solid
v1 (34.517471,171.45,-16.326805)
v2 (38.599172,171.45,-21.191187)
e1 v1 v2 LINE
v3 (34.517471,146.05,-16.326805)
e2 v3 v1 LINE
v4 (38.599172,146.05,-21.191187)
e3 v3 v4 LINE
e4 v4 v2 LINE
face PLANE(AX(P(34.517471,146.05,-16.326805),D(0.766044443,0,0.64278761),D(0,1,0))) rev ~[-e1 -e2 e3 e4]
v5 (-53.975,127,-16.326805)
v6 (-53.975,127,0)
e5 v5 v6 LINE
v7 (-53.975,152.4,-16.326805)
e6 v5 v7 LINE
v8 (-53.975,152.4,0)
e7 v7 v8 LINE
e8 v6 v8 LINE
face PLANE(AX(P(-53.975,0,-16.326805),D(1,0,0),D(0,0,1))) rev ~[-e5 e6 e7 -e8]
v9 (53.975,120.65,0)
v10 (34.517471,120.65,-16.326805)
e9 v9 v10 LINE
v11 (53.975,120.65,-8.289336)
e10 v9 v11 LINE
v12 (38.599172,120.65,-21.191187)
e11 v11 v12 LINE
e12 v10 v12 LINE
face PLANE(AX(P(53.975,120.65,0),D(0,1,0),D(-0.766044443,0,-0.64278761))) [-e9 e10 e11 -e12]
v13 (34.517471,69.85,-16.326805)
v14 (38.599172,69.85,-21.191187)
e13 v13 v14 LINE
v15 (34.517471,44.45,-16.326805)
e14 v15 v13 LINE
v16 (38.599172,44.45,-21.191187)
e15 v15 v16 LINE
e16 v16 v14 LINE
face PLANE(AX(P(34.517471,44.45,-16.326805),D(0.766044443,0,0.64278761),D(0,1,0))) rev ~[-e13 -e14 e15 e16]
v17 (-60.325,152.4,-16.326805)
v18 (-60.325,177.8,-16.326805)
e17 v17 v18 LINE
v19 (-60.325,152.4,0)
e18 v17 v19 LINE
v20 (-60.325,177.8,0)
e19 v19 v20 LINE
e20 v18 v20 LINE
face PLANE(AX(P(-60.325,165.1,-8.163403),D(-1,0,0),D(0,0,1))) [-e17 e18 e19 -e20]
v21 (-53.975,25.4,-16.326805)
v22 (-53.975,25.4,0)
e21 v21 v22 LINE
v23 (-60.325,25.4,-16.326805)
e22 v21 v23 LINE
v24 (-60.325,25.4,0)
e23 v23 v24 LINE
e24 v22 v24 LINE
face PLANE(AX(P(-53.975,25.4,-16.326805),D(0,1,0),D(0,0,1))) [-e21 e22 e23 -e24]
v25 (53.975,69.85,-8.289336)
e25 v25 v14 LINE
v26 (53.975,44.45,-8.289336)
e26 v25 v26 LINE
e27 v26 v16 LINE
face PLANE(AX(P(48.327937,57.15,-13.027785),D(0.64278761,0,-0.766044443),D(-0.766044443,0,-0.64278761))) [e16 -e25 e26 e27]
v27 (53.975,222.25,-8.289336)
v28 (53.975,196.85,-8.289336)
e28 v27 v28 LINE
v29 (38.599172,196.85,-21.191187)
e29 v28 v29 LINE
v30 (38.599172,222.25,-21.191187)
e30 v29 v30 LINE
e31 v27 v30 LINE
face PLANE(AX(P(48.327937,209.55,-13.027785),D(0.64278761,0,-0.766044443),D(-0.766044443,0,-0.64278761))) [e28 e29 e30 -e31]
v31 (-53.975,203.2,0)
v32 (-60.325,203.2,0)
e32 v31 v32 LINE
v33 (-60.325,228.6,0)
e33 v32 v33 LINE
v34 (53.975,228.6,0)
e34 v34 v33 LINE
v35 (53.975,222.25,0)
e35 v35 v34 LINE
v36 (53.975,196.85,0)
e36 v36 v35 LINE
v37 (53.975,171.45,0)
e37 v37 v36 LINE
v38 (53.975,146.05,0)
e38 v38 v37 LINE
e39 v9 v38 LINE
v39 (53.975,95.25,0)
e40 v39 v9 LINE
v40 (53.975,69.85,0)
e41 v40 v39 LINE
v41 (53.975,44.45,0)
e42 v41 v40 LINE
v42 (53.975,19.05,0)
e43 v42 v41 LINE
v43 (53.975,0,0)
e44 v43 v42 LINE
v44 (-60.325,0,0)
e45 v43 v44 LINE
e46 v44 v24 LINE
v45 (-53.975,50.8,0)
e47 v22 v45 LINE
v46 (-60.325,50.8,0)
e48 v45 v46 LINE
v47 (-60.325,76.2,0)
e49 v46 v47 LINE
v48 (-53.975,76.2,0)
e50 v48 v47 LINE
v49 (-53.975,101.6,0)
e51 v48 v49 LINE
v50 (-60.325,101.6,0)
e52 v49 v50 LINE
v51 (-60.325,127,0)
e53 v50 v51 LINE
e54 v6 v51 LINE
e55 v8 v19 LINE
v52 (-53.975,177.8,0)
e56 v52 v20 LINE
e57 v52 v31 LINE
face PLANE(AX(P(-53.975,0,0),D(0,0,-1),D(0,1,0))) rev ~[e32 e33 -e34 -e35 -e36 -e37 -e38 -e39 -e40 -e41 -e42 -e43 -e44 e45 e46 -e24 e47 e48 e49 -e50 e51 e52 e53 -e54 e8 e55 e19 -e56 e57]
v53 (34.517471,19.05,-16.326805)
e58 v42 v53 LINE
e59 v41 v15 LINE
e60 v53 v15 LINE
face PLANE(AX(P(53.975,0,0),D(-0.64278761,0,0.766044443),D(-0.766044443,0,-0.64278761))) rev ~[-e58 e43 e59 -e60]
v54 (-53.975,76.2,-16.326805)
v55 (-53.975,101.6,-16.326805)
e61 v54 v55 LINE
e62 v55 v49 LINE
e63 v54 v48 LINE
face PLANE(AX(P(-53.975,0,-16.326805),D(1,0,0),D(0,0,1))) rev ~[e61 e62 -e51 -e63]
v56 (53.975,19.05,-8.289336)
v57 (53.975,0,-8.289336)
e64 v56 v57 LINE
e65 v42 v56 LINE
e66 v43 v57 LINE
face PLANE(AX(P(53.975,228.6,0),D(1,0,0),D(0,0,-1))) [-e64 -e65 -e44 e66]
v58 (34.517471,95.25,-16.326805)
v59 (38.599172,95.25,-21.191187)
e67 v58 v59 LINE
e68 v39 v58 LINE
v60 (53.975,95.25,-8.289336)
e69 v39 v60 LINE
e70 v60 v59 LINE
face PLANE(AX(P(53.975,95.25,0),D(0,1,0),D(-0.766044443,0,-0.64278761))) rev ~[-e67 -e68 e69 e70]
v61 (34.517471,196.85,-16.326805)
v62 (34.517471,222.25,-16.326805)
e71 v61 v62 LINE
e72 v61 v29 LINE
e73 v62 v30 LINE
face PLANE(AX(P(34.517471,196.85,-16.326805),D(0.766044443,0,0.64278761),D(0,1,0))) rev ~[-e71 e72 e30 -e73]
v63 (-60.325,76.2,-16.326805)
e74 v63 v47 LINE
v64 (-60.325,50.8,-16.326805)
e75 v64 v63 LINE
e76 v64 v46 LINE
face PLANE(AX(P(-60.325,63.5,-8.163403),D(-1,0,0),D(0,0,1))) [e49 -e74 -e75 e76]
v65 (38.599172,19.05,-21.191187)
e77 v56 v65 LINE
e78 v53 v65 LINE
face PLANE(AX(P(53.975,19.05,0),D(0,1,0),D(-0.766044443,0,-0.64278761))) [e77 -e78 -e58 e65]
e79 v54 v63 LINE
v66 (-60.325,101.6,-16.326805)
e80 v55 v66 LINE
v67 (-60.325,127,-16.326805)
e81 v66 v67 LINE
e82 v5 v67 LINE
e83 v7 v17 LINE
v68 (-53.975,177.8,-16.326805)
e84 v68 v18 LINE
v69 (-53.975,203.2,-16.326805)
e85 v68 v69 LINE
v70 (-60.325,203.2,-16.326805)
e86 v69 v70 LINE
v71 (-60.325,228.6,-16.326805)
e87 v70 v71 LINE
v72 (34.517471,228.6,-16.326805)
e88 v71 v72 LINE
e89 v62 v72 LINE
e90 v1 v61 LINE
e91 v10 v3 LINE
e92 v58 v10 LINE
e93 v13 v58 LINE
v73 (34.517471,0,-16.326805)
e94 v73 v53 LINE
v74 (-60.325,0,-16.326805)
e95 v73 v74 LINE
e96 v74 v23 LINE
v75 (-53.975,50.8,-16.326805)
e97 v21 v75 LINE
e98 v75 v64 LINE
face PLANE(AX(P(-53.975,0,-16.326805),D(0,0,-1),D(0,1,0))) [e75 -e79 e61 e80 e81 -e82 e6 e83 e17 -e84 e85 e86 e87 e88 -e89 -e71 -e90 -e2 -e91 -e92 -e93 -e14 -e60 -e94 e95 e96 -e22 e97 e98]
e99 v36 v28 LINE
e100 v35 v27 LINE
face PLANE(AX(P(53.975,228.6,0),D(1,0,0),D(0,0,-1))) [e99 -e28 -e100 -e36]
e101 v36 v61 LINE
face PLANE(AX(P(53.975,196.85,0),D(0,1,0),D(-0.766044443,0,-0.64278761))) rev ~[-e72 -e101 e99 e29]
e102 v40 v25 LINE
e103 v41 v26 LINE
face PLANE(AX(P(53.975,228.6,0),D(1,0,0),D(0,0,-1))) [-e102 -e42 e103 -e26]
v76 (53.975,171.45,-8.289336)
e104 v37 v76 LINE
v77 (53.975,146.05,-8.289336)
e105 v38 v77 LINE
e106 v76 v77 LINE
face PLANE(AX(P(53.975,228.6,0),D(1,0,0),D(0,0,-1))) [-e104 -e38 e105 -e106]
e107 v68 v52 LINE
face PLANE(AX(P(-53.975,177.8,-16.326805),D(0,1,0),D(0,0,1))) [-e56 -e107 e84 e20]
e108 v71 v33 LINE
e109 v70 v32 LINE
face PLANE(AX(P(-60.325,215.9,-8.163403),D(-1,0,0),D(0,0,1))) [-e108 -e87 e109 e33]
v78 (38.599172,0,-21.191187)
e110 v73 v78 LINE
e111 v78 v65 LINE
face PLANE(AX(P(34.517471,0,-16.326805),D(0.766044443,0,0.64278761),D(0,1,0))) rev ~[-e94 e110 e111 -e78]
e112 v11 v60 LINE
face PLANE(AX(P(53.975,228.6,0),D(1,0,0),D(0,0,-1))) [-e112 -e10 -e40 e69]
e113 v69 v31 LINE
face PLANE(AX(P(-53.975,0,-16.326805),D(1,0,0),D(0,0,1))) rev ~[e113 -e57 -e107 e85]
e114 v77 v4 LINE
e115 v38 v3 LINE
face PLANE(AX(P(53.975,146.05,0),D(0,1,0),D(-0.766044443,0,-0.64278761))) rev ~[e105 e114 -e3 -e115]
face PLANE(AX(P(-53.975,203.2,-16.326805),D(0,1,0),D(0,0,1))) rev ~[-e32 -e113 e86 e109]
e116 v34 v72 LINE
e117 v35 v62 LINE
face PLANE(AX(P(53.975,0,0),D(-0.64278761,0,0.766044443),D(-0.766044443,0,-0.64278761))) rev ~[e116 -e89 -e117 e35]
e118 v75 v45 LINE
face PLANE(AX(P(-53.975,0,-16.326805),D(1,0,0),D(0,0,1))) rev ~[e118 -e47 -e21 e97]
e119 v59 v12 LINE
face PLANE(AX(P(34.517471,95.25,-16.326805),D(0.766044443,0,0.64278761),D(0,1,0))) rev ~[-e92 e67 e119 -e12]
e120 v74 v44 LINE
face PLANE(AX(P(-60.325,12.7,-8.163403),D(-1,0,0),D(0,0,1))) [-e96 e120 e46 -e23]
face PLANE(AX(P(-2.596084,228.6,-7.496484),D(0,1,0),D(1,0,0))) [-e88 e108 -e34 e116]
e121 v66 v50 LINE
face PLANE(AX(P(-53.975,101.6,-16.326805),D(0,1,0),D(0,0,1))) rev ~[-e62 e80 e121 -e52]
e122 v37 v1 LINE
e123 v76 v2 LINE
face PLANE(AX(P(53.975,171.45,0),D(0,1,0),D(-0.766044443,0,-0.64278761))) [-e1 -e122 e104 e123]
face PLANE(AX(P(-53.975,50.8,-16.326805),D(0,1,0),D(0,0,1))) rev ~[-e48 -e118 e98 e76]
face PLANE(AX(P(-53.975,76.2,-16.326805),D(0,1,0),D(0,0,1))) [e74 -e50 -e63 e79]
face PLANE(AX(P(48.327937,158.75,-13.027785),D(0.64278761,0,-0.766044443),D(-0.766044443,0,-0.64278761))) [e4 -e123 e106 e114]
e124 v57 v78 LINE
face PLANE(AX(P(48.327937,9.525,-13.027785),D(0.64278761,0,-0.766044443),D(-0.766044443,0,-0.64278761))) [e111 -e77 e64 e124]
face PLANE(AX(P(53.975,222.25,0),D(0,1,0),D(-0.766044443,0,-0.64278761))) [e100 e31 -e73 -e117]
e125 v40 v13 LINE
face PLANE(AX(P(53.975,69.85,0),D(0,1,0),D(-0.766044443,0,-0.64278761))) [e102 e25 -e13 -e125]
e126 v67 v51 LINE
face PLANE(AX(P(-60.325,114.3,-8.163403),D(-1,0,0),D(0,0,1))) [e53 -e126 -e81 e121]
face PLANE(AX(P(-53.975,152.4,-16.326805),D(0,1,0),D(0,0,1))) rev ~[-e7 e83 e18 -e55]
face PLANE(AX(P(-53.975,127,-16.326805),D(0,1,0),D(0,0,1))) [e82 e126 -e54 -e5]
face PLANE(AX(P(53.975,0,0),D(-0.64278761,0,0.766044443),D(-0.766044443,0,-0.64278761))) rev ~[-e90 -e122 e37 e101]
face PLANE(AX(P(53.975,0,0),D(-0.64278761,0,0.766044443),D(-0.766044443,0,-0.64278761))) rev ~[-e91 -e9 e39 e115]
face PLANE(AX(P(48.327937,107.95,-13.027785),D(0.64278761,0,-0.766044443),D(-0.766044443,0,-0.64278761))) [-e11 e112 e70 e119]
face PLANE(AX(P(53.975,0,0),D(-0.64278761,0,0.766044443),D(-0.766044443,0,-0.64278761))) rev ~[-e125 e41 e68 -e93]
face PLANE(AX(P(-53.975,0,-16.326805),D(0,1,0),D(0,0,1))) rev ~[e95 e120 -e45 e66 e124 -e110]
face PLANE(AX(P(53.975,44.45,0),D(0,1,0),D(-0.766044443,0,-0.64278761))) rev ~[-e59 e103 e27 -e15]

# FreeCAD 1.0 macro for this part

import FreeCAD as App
import Part
import Sketcher
from FreeCAD import Vector
Q = App.Units.Quantity

doc = App.newDocument("Part")
body = doc.addObject("PartDesign::Body", "Body")

sketch1 = body.newObject("Sketcher::SketchObject", "Sketch")
sketch1.AttachmentSupport = (doc.getObject("XZ_Plane"), [""])
sketch1.MapMode = "FlatFace"
sketch1.addGeometry([
    Part.LineSegment(Vector(-54, 0, 0), Vector(54, 0, 0)),
    Part.LineSegment(Vector(54, 0, 0), Vector(35, -16, 0)),
    Part.LineSegment(Vector(35, -16, 0), Vector(-54, -16, 0)),
    Part.LineSegment(Vector(-54, -16, 0), Vector(-54, 0, 0)),
], False)
sketch1.addConstraint([
    Sketcher.Constraint("Coincident", 0, 2, 1, 1),
    Sketcher.Constraint("Coincident", 1, 2, 2, 1),
    Sketcher.Constraint("Coincident", 2, 2, 3, 1),
    Sketcher.Constraint("Coincident", 3, 2, 0, 1),
    Sketcher.Constraint("Horizontal", 0),
    Sketcher.Constraint("Horizontal", 2),
    Sketcher.Constraint("Vertical", 3),
    Sketcher.Constraint("Symmetric", 0, 2, 3, 2, -1, 1),
    Sketcher.Constraint("Distance", 1, Q("1 in")),
    Sketcher.Constraint("Angle", 1, Q("-140 deg")),
    Sketcher.Constraint("DistanceX", 0, 1, 0, 2, Q("4.25 in")),
])
pad1 = body.newObject("PartDesign::Pad", "Pad")
pad1.Profile = sketch1
pad1.Length = Q("9 in")
pad1.Reversed = True

sketch2 = body.newObject("Sketcher::SketchObject", "Sketch001")
sketch2.Placement = App.Placement(Vector(22.30117, 0, -26.577499), App.Rotation(Vector(-0.766044443, 0, -0.64278761), Vector(0, 1, 0), Vector(0.64278761, 0, -0.766044443), "ZXY"))
sketch2.addGeometry([
    Part.LineSegment(Vector(-41, 222, 0), Vector(-41, 197, 0)),
    Part.LineSegment(Vector(-41, 197, 0), Vector(-16, 197, 0)),
    Part.LineSegment(Vector(-16, 197, 0), Vector(-16, 222, 0)),
    Part.LineSegment(Vector(-16, 222, 0), Vector(-41, 222, 0)),
    Part.LineSegment(Vector(-41, 171, 0), Vector(-41, 146, 0)),
    Part.LineSegment(Vector(-41, 146, 0), Vector(-16, 146, 0)),
    Part.LineSegment(Vector(-16, 146, 0), Vector(-16, 171, 0)),
    Part.LineSegment(Vector(-16, 171, 0), Vector(-41, 171, 0)),
    Part.LineSegment(Vector(-41, 121, 0), Vector(-41, 95, 0)),
    Part.LineSegment(Vector(-41, 95, 0), Vector(-16, 95, 0)),
    Part.LineSegment(Vector(-16, 95, 0), Vector(-16, 121, 0)),
    Part.LineSegment(Vector(-16, 121, 0), Vector(-41, 121, 0)),
    Part.LineSegment(Vector(-41, 70, 0), Vector(-41, 44, 0)),
    Part.LineSegment(Vector(-41, 44, 0), Vector(-16, 44, 0)),
    Part.LineSegment(Vector(-16, 44, 0), Vector(-16, 70, 0)),
    Part.LineSegment(Vector(-16, 70, 0), Vector(-41, 70, 0)),
    Part.LineSegment(Vector(-41, 19, 0), Vector(-41, 0, 0)),
    Part.LineSegment(Vector(-41, 0, 0), Vector(-16, 0, 0)),
    Part.LineSegment(Vector(-16, 0, 0), Vector(-16, 19, 0)),
    Part.LineSegment(Vector(-16, 19, 0), Vector(-41, 19, 0)),
], False)
sketch2.addConstraint([
    Sketcher.Constraint("Coincident", 0, 2, 1, 1),
    Sketcher.Constraint("Coincident", 1, 2, 2, 1),
    Sketcher.Constraint("Coincident", 2, 2, 3, 1),
    Sketcher.Constraint("Coincident", 3, 2, 0, 1),
    Sketcher.Constraint("Coincident", 4, 2, 5, 1),
    Sketcher.Constraint("Coincident", 5, 2, 6, 1),
    Sketcher.Constraint("Coincident", 6, 2, 7, 1),
    Sketcher.Constraint("Coincident", 7, 2, 4, 1),
    Sketcher.Constraint("Coincident", 8, 2, 9, 1),
    Sketcher.Constraint("Coincident", 9, 2, 10, 1),
    Sketcher.Constraint("Coincident", 10, 2, 11, 1),
    Sketcher.Constraint("Coincident", 11, 2, 8, 1),
    Sketcher.Constraint("Coincident", 12, 2, 13, 1),
    Sketcher.Constraint("Coincident", 13, 2, 14, 1),
    Sketcher.Constraint("Coincident", 14, 2, 15, 1),
    Sketcher.Constraint("Coincident", 15, 2, 12, 1),
    Sketcher.Constraint("Coincident", 16, 2, 17, 1),
    Sketcher.Constraint("Coincident", 17, 2, 18, 1),
    Sketcher.Constraint("Coincident", 18, 2, 19, 1),
    Sketcher.Constraint("Coincident", 19, 2, 16, 1),
    Sketcher.Constraint("Vertical", 0),
    Sketcher.Constraint("Horizontal", 1),
    Sketcher.Constraint("Vertical", 2),
    Sketcher.Constraint("Horizontal", 3),
    Sketcher.Constraint("Vertical", 4),
    Sketcher.Constraint("Horizontal", 5),
    Sketcher.Constraint("Vertical", 6),
    Sketcher.Constraint("Horizontal", 7),
    Sketcher.Constraint("Vertical", 8),
    Sketcher.Constraint("Horizontal", 9),
    Sketcher.Constraint("Vertical", 10),
    Sketcher.Constraint("Horizontal", 11),
    Sketcher.Constraint("Vertical", 12),
    Sketcher.Constraint("Horizontal", 13),
    Sketcher.Constraint("Vertical", 14),
    Sketcher.Constraint("Horizontal", 15),
    Sketcher.Constraint("Vertical", 16),
    Sketcher.Constraint("Horizontal", 17),
    Sketcher.Constraint("Vertical", 18),
    Sketcher.Constraint("Horizontal", 19),
    Sketcher.Constraint("PointOnObject", 16, 2, -1),
    Sketcher.Constraint("Vertical", 3, 2, 4, 2),
    Sketcher.Constraint("Vertical", 2, 2, 5, 2),
    Sketcher.Constraint("Vertical", 7, 2, 8, 2),
    Sketcher.Constraint("Vertical", 6, 2, 9, 2),
    Sketcher.Constraint("Vertical", 11, 2, 12, 2),
    Sketcher.Constraint("Vertical", 10, 2, 13, 2),
    Sketcher.Constraint("Vertical", 15, 2, 16, 2),
    Sketcher.Constraint("Vertical", 14, 2, 17, 2),
    Sketcher.Constraint("Equal", 19, 0),
    Sketcher.Constraint("Equal", 2, 4),
    Sketcher.Constraint("Equal", 6, 8),
    Sketcher.Constraint("Equal", 10, 12),
    Sketcher.Constraint("DistanceX", 1, 1, 1, 2, Q("1 in")),
    Sketcher.Constraint("DistanceY", 4, 2, 0, 2, Q("2 in")),
    Sketcher.Constraint("DistanceY", 8, 2, 4, 2, Q("2 in")),
    Sketcher.Constraint("DistanceY", 12, 2, 8, 2, Q("2 in")),
    Sketcher.Constraint("DistanceY", 18, 2, 13, 2, Q("1 in")),
    Sketcher.Constraint("DistanceY", 16, 2, 16, 1, Q("0.75 in")),
    Sketcher.Constraint("DistanceX", 0, 2, -1, 1, 41.347249),
])
pad2 = body.newObject("PartDesign::Pad", "Pad001")
pad2.Profile = sketch2
pad2.Length = Q("0.25 in")

sketch3 = body.newObject("Sketcher::SketchObject", "Sketch002")
sketch3.AttachmentSupport = (doc.getObject("XZ_Plane"), [""])
sketch3.MapMode = "FlatFace"
sketch3.AttachmentOffset = App.Placement(Vector(0, 0, -9 * 25.4), App.Rotation())
sketch3.addGeometry([
    Part.LineSegment(Vector(54, -25, 0), Vector(54, 0, 0)),
    Part.LineSegment(Vector(54, 0, 0), Vector(79, 0, 0)),
    Part.LineSegment(Vector(79, 0, 0), Vector(79, -25, 0)),
    Part.LineSegment(Vector(79, -25, 0), Vector(54, -25, 0)),
], False)
sketch3.addConstraint([
    Sketcher.Constraint("Coincident", 0, 2, 1, 1),
    Sketcher.Constraint("Coincident", 1, 2, 2, 1),
    Sketcher.Constraint("Coincident", 2, 2, 3, 1),
    Sketcher.Constraint("Coincident", 3, 2, 0, 1),
    Sketcher.Constraint("Vertical", 0),
    Sketcher.Constraint("Horizontal", 1),
    Sketcher.Constraint("Vertical", 2),
    Sketcher.Constraint("Horizontal", 3),
    Sketcher.Constraint("PointOnObject", 0, 2, -1),
    Sketcher.Constraint("Equal", 3, 0),
    Sketcher.Constraint("DistanceX", 1, 1, 1, 2, Q("1 in")),
    Sketcher.Constraint("DistanceX", -1, 1, 0, 2, Q("2.125 in")),
])
pocket1 = body.newObject("PartDesign::Pocket", "Pocket")
pocket1.Profile = sketch3
pocket1.Length = Q("9 in")
pocket1.Reversed = True

sketch4 = body.newObject("Sketcher::SketchObject", "Sketch003")
sketch4.AttachmentSupport = (doc.getObject("YZ_Plane"), [""])
sketch4.MapMode = "FlatFace"
sketch4.AttachmentOffset = App.Placement(Vector(0, 0, -2.125 * 25.4), App.Rotation())
sketch4.addGeometry([
    Part.LineSegment(Vector(25, -16, 0), Vector(0, -16, 0)),
    Part.LineSegment(Vector(0, -16, 0), Vector(0, 0, 0)),
    Part.LineSegment(Vector(0, 0, 0), Vector(25, 0, 0)),
    Part.LineSegment(Vector(25, 0, 0), Vector(25, -16, 0)),
    Part.LineSegment(Vector(76, -16, 0), Vector(51, -16, 0)),
    Part.LineSegment(Vector(51, -16, 0), Vector(51, 0, 0)),
    Part.LineSegment(Vector(51, 0, 0), Vector(76, 0, 0)),
    Part.LineSegment(Vector(76, 0, 0), Vector(76, -16, 0)),
    Part.LineSegment(Vector(127, -16, 0), Vector(102, -16, 0)),
    Part.LineSegment(Vector(102, -16, 0), Vector(102, 0, 0)),
    Part.LineSegment(Vector(102, 0, 0), Vector(127, 0, 0)),
    Part.LineSegment(Vector(127, 0, 0), Vector(127, -16, 0)),
    Part.LineSegment(Vector(178, -16, 0), Vector(152, -16, 0)),
    Part.LineSegment(Vector(152, -16, 0), Vector(152, 0, 0)),
    Part.LineSegment(Vector(152, 0, 0), Vector(178, 0, 0)),
    Part.LineSegment(Vector(178, 0, 0), Vector(178, -16, 0)),
    Part.LineSegment(Vector(229, -16, 0), Vector(203, -16, 0)),
    Part.LineSegment(Vector(203, -16, 0), Vector(203, 0, 0)),
    Part.LineSegment(Vector(203, 0, 0), Vector(229, 0, 0)),
    Part.LineSegment(Vector(229, 0, 0), Vector(229, -16, 0)),
], False)
sketch4.addConstraint([
    Sketcher.Constraint("Coincident", 0, 2, 1, 1),
    Sketcher.Constraint("Coincident", 1, 2, 2, 1),
    Sketcher.Constraint("Coincident", 2, 2, 3, 1),
    Sketcher.Constraint("Coincident", 3, 2, 0, 1),
    Sketcher.Constraint("Coincident", 4, 2, 5, 1),
    Sketcher.Constraint("Coincident", 5, 2, 6, 1),
    Sketcher.Constraint("Coincident", 6, 2, 7, 1),
    Sketcher.Constraint("Coincident", 7, 2, 4, 1),
    Sketcher.Constraint("Coincident", 8, 2, 9, 1),
    Sketcher.Constraint("Coincident", 9, 2, 10, 1),
    Sketcher.Constraint("Coincident", 10, 2, 11, 1),
    Sketcher.Constraint("Coincident", 11, 2, 8, 1),
    Sketcher.Constraint("Coincident", 12, 2, 13, 1),
    Sketcher.Constraint("Coincident", 13, 2, 14, 1),
    Sketcher.Constraint("Coincident", 14, 2, 15, 1),
    Sketcher.Constraint("Coincident", 15, 2, 12, 1),
    Sketcher.Constraint("Coincident", 16, 2, 17, 1),
    Sketcher.Constraint("Coincident", 17, 2, 18, 1),
    Sketcher.Constraint("Coincident", 18, 2, 19, 1),
    Sketcher.Constraint("Coincident", 19, 2, 16, 1),
    Sketcher.Constraint("Horizontal", 0),
    Sketcher.Constraint("Vertical", 1),
    Sketcher.Constraint("Horizontal", 2),
    Sketcher.Constraint("Vertical", 3),
    Sketcher.Constraint("Horizontal", 4),
    Sketcher.Constraint("Vertical", 5),
    Sketcher.Constraint("Horizontal", 6),
    Sketcher.Constraint("Vertical", 7),
    Sketcher.Constraint("Horizontal", 8),
    Sketcher.Constraint("Vertical", 9),
    Sketcher.Constraint("Horizontal", 10),
    Sketcher.Constraint("Vertical", 11),
    Sketcher.Constraint("Horizontal", 12),
    Sketcher.Constraint("Vertical", 13),
    Sketcher.Constraint("Horizontal", 14),
    Sketcher.Constraint("Vertical", 15),
    Sketcher.Constraint("Horizontal", 16),
    Sketcher.Constraint("Vertical", 17),
    Sketcher.Constraint("Horizontal", 18),
    Sketcher.Constraint("Vertical", 19),
    Sketcher.Constraint("Coincident", 1, 2, -1, 1),
    Sketcher.Constraint("PointOnObject", 5, 2, -1),
    Sketcher.Constraint("PointOnObject", 9, 2, -1),
    Sketcher.Constraint("PointOnObject", 13, 2, -1),
    Sketcher.Constraint("PointOnObject", 17, 2, -1),
    Sketcher.Constraint("Horizontal", 3, 2, 4, 2),
    Sketcher.Constraint("Horizontal", 7, 2, 8, 2),
    Sketcher.Constraint("Horizontal", 11, 2, 12, 2),
    Sketcher.Constraint("Horizontal", 15, 2, 16, 2),
    Sketcher.Constraint("Equal", 2, 4),
    Sketcher.Constraint("Equal", 6, 8),
    Sketcher.Constraint("Equal", 10, 12),
    Sketcher.Constraint("Equal", 14, 16),
    Sketcher.Constraint("DistanceX", 0, 2, 0, 1, Q("1 in")),
    Sketcher.Constraint("DistanceX", -1, 1, 4, 2, Q("2 in")),
    Sketcher.Constraint("DistanceX", -1, 1, 8, 2, Q("4 in")),
    Sketcher.Constraint("DistanceX", -1, 1, 12, 2, Q("6 in")),
    Sketcher.Constraint("DistanceX", -1, 1, 16, 2, Q("8 in")),
    Sketcher.Constraint("DistanceY", 1, 1, 1, 2, 16.326805),
])
pad3 = body.newObject("PartDesign::Pad", "Pad002")
pad3.Profile = sketch4
pad3.Length = Q("0.25 in")
pad3.Reversed = True

doc.recompute()
